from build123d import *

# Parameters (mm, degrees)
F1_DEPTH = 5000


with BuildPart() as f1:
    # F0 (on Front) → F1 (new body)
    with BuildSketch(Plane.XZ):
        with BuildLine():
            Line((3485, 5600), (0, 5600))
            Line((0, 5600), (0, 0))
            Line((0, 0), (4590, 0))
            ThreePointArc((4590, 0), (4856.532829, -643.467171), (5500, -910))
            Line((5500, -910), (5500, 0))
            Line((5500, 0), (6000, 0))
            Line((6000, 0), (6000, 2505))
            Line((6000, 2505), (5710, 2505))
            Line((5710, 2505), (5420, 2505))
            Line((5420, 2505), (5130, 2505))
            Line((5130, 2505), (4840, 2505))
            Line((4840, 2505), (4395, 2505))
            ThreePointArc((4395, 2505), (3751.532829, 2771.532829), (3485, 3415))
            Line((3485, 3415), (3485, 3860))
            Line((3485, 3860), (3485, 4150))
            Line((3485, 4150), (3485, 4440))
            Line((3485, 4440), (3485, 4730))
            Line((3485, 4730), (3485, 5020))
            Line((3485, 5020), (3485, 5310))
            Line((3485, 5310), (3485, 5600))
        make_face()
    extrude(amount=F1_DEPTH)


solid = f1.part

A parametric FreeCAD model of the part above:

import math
import FreeCAD as App
import Part
import Sketcher

V = App.Vector
Q = App.Units.Quantity

doc = App.newDocument("Part")
body = doc.addObject("PartDesign::Body", "Body")

# Sketch on XZ plane
sketch1 = body.newObject("Sketcher::SketchObject", "Sketch")
sketch1.AttachmentSupport = (doc.getObject("XZ_Plane"), [""])
sketch1.MapMode = "FlatFace"
sketch1.addGeometry(Part.LineSegment(V(3485, 5600, 0), V(0, 5600, 0)), False)
sketch1.addGeometry(Part.LineSegment(V(0, 5600, 0), V(0, 0, 0)), False)
sketch1.addGeometry(Part.LineSegment(V(0, 0, 0), V(4590, 0, 0)), False)
sketch1.addGeometry(Part.ArcOfCircle(Part.Circle(V(5500, 0, 0), V(0, 0, 1), 910), math.radians(180), math.radians(270)), False)
sketch1.addGeometry(Part.LineSegment(V(5500, -910, 0), V(5500, 0, 0)), False)
sketch1.addGeometry(Part.LineSegment(V(5500, 0, 0), V(6000, 0, 0)), False)
sketch1.addGeometry(Part.LineSegment(V(6000, 0, 0), V(6000, 2505, 0)), False)
sketch1.addGeometry(Part.LineSegment(V(6000, 2505, 0), V(4395, 2505, 0)), False)
sketch1.addGeometry(Part.ArcOfCircle(Part.Circle(V(4395, 3415, 0), V(0, 0, 1), 910), math.radians(180), math.radians(270)), False)
sketch1.addGeometry(Part.LineSegment(V(3485, 3415, 0), V(3485, 5600, 0)), False)
sketch1.addConstraint(Sketcher.Constraint("Coincident", 0, 2, 1, 1))
sketch1.addConstraint(Sketcher.Constraint("Coincident", 1, 2, 2, 1))
sketch1.addConstraint(Sketcher.Constraint("Coincident", 2, 2, 3, 1))
sketch1.addConstraint(Sketcher.Constraint("Coincident", 3, 2, 4, 1))
sketch1.addConstraint(Sketcher.Constraint("Coincident", 4, 2, 5, 1))
sketch1.addConstraint(Sketcher.Constraint("Coincident", 5, 2, 6, 1))
sketch1.addConstraint(Sketcher.Constraint("Coincident", 6, 2, 7, 1))
sketch1.addConstraint(Sketcher.Constraint("Coincident", 7, 2, 8, 2))
sketch1.addConstraint(Sketcher.Constraint("Coincident", 8, 1, 9, 1))
sketch1.addConstraint(Sketcher.Constraint("Coincident", 9, 2, 0, 1))
sketch1.addConstraint(Sketcher.Constraint("Horizontal", 0))
sketch1.addConstraint(Sketcher.Constraint("Vertical", 1))
sketch1.addConstraint(Sketcher.Constraint("Horizontal", 2))
sketch1.addConstraint(Sketcher.Constraint("Vertical", 4))
sketch1.addConstraint(Sketcher.Constraint("Horizontal", 5))
sketch1.addConstraint(Sketcher.Constraint("Vertical", 6))
sketch1.addConstraint(Sketcher.Constraint("Horizontal", 7))
sketch1.addConstraint(Sketcher.Constraint("Vertical", 9))
sketch1.addConstraint(Sketcher.Constraint("Coincident", 1, 2, -1, 1))
sketch1.addConstraint(Sketcher.Constraint("Coincident", 4, 2, 3, 3))
sketch1.addConstraint(Sketcher.Constraint("Equal", 3, 8))
sketch1.addConstraint(Sketcher.Constraint("PointOnObject", 3, 3, -1))
sketch1.addConstraint(Sketcher.Constraint("Vertical", 8, 3, 7, 2))
sketch1.addConstraint(Sketcher.Constraint("Radius", 3, Q("910 mm")))
sketch1.addConstraint(Sketcher.Constraint("DistanceX", 0, 2, 0, 1, Q("3485 mm")))
sketch1.addConstraint(Sketcher.Constraint("DistanceX", 2, 1, 2, 2, Q("4590 mm")))
sketch1.addConstraint(Sketcher.Constraint("DistanceX", 5, 1, 5, 2, Q("500 mm")))
sketch1.addConstraint(Sketcher.Constraint("DistanceY", 1, 2, 1, 1, Q("5600 mm")))
sketch1.addConstraint(Sketcher.Constraint("DistanceY", 6, 1, 6, 2, Q("2505 mm")))
sketch1.addConstraint(Sketcher.Constraint("DistanceY", 9, 1, 9, 2, Q("2185 mm")))
pad1 = body.newObject("PartDesign::Pad", "Pad")
pad1.Profile = sketch1
pad1.Length = 5000

doc.recompute()
